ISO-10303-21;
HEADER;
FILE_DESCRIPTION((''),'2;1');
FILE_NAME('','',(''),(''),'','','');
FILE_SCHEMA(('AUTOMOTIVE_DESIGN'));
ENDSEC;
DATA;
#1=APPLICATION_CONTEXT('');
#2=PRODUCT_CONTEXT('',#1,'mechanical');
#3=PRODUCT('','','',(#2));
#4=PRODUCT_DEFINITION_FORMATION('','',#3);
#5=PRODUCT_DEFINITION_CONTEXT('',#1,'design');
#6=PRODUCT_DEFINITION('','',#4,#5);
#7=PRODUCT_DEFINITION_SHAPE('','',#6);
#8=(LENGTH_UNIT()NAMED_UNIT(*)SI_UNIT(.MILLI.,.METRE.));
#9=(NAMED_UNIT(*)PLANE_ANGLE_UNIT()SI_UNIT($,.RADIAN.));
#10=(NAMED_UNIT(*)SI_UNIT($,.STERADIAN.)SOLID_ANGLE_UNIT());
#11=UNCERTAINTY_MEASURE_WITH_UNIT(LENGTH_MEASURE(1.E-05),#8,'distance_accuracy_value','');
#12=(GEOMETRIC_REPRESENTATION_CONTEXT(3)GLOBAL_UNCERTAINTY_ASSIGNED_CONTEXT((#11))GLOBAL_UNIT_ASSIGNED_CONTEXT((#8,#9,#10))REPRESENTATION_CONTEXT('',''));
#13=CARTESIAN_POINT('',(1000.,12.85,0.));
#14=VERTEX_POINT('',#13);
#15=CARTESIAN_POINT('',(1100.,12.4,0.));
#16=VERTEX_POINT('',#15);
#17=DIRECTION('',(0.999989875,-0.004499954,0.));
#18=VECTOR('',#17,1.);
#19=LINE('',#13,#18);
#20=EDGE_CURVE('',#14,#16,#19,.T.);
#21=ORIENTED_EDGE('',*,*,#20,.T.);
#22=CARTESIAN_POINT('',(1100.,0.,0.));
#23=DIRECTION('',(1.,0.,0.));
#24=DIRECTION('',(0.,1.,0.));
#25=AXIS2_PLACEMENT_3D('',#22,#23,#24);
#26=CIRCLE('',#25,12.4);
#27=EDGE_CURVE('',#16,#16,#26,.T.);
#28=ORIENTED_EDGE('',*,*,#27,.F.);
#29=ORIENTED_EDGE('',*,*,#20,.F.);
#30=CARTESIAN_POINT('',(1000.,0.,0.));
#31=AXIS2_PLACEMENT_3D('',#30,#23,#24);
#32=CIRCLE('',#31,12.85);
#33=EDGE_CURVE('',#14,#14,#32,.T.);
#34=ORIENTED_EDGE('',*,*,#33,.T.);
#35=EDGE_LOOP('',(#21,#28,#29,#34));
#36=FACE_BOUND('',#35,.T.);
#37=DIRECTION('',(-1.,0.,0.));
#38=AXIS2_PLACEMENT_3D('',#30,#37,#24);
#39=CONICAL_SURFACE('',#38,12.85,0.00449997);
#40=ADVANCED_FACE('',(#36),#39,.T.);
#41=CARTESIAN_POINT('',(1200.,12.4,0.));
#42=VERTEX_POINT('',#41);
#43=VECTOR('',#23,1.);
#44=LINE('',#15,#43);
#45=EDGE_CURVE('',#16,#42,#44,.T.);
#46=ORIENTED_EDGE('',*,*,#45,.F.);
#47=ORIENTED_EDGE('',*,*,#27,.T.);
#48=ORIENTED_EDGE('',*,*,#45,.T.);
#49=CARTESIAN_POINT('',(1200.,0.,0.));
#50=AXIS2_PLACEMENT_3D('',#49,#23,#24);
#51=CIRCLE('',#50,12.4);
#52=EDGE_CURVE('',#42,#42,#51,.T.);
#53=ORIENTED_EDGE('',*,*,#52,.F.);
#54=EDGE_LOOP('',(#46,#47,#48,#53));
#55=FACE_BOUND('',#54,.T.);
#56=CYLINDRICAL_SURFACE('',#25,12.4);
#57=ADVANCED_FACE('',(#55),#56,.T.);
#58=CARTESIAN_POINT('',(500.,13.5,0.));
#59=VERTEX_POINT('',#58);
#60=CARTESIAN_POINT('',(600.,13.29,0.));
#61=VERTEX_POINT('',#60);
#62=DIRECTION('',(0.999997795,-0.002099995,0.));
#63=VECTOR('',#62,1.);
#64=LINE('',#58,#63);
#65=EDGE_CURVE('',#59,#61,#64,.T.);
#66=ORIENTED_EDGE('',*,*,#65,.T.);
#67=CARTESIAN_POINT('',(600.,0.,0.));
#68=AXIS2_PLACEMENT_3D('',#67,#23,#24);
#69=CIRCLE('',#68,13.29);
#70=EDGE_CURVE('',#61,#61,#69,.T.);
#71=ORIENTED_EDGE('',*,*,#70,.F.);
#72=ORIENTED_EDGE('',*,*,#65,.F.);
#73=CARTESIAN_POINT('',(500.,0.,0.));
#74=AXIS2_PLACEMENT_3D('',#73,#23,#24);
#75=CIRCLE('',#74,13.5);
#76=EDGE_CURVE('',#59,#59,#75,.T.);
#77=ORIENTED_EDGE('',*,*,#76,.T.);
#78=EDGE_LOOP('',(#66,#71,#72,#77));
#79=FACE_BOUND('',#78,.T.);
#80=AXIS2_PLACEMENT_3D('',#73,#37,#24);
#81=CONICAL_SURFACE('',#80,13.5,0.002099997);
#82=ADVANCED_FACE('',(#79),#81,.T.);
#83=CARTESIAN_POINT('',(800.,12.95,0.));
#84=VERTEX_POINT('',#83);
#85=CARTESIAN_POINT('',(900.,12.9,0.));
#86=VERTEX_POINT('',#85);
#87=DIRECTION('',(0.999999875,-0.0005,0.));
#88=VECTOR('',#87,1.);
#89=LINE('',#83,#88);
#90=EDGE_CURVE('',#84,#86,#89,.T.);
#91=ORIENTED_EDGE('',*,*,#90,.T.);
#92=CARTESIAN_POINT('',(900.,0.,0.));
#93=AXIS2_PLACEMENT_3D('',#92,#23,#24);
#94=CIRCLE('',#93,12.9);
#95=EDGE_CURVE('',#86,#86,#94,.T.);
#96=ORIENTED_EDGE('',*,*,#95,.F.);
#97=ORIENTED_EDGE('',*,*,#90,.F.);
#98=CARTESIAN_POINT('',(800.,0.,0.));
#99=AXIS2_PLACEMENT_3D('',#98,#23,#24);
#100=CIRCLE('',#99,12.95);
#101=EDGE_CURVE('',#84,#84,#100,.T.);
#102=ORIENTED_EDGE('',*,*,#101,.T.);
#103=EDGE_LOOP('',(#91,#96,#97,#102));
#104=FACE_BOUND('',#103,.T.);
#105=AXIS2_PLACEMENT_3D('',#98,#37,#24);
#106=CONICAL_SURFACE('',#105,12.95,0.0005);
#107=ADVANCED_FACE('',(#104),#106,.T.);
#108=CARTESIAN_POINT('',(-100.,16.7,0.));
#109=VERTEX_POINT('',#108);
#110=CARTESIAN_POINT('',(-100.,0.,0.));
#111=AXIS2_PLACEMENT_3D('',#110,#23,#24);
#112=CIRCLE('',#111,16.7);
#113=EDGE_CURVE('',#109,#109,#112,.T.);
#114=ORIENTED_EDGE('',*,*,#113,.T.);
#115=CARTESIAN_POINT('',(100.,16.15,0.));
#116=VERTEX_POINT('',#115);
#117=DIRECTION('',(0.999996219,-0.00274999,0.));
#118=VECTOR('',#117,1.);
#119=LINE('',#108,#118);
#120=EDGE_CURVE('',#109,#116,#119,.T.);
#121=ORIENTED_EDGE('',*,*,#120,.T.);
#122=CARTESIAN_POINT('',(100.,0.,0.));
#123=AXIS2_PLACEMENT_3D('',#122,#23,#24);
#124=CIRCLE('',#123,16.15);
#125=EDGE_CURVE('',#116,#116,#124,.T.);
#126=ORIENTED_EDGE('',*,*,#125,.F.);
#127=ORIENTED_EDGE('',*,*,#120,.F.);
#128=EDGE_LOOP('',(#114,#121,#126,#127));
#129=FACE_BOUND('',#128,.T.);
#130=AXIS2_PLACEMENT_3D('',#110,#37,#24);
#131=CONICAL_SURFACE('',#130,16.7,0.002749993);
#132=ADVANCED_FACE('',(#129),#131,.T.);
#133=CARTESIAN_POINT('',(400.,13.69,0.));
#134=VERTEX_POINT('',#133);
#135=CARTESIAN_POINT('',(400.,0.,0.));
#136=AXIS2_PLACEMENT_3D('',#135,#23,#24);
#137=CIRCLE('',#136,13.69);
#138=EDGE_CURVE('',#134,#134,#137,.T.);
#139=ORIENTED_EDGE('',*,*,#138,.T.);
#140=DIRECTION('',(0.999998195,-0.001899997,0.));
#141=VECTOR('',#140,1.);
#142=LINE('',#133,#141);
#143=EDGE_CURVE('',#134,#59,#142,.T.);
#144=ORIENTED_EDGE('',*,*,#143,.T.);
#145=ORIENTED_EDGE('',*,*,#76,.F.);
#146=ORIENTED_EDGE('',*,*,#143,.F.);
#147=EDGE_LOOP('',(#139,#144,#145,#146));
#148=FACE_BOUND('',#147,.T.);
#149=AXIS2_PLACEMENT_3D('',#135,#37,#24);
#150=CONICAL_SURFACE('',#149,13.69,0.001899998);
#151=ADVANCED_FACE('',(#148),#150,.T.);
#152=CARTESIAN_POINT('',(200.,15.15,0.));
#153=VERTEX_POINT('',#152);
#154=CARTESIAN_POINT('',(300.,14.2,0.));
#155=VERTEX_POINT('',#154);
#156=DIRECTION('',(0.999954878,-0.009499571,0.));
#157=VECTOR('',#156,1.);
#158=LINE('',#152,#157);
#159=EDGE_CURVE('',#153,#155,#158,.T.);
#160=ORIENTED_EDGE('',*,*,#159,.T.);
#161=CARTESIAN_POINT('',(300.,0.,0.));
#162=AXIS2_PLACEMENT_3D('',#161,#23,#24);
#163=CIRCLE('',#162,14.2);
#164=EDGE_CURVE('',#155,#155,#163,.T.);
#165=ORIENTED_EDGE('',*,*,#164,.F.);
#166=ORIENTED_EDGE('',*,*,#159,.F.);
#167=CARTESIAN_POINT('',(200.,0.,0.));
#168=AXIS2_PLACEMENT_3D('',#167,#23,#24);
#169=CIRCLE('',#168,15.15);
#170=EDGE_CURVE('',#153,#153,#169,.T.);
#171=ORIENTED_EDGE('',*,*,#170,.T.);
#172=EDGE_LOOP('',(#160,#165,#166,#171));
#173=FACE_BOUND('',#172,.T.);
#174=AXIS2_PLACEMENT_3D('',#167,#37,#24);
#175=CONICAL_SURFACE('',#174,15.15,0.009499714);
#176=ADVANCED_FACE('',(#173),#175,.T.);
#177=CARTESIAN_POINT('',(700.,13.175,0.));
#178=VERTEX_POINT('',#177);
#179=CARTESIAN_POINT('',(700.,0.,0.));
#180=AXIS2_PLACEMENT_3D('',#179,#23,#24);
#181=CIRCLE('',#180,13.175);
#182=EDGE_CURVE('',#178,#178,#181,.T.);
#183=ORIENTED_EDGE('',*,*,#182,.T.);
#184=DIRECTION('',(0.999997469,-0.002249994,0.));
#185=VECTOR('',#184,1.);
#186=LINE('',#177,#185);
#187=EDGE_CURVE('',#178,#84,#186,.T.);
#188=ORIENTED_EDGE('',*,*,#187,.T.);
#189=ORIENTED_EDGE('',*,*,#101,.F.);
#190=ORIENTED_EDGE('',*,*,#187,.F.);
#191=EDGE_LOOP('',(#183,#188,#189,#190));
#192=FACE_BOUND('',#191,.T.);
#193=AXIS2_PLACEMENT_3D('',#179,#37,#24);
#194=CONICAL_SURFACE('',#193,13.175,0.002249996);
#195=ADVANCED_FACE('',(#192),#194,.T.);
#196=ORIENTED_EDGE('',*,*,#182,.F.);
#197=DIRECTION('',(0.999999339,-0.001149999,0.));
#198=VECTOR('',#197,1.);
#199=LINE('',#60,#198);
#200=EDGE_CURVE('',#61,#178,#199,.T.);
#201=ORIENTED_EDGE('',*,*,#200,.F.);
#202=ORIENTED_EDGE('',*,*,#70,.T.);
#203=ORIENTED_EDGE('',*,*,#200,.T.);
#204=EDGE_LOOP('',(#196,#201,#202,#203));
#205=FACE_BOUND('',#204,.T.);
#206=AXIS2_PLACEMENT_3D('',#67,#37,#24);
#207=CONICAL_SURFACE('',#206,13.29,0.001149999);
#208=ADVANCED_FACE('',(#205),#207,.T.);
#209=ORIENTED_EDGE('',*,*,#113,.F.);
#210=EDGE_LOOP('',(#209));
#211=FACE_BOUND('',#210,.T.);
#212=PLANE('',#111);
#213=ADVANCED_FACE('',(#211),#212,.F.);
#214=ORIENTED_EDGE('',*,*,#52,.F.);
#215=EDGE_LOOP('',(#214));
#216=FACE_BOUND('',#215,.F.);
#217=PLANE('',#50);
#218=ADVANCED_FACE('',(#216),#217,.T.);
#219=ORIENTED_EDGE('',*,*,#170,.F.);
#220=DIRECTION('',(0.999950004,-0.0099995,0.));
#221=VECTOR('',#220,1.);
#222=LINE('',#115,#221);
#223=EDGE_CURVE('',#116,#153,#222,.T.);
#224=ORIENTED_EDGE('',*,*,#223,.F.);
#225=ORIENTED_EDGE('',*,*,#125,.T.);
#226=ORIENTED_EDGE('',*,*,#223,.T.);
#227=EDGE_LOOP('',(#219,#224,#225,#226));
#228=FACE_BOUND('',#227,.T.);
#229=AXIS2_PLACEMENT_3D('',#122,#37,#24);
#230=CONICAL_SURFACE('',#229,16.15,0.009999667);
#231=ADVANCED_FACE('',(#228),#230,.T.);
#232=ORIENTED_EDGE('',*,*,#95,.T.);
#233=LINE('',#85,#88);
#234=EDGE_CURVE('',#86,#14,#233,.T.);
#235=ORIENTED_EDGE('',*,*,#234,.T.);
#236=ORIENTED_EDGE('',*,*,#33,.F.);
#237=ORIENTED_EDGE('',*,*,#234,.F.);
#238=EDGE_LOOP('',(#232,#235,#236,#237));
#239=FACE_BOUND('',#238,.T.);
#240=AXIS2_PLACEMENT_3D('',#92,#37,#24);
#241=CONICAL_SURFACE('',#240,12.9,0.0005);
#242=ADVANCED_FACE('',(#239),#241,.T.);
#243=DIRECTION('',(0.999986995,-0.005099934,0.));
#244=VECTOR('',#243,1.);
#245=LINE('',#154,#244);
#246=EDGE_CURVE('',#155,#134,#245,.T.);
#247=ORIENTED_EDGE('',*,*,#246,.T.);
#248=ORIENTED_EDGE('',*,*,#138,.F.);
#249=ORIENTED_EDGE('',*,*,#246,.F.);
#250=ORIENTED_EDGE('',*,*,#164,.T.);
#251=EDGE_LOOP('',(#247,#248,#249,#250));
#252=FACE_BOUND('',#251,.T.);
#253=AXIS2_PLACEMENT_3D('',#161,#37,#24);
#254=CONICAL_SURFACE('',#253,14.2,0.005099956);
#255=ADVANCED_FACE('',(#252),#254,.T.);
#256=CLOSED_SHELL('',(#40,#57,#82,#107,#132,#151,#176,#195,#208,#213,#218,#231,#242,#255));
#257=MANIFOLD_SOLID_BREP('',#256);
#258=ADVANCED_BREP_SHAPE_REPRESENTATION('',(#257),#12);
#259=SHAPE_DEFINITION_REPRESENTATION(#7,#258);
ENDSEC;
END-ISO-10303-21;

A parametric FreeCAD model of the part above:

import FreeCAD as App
import Part
import Sketcher
from FreeCAD import Vector
Q = App.Units.Quantity


def add_polygon(sketch, points):
    """Adds a closed chain of lines whose ends are joined by coincident constraints."""
    first, n = sketch.GeometryCount, len(points)
    for a, b in zip(points, points[1:] + points[:1]):
        sketch.addGeometry(Part.LineSegment(App.Vector(*a, 0), App.Vector(*b, 0)), False)
    for i in range(n):
        sketch.addConstraint(Sketcher.Constraint("Coincident", first + i, 2, first + (i + 1) % n, 1))

doc = App.newDocument("Part")
body = doc.addObject("PartDesign::Body", "Body")

sketch1 = doc.addObject("Sketcher::SketchObject", "Sketch")
body.addObject(sketch1)
sketch1.AttachmentSupport = (doc.XY_Plane, [""])
sketch1.MapMode = "FlatFace"
add_polygon(sketch1, [(-100, 16.7), (-100, 0), (1200, 0), (1200, 12.4), (1100, 12.4), (1000, 12.85), (800, 12.95), (700, 13.175), (600, 13.29), (500, 13.5), (400, 13.69), (300, 14.2), (200, 15.15), (100, 16.15)])
sketch1.addConstraint(Sketcher.Constraint("Vertical", 0))
sketch1.addConstraint(Sketcher.Constraint("Horizontal", 1))
sketch1.addConstraint(Sketcher.Constraint("Vertical", 2))
sketch1.addConstraint(Sketcher.Constraint("Horizontal", 3))
sketch1.addConstraint(Sketcher.Constraint("PointOnObject", 0, 2, -1))
sketch1.addConstraint(Sketcher.Constraint("DistanceX", 1, 1, 1, 2, Q("1300 mm")))
sketch1.addConstraint(Sketcher.Constraint("DistanceX", 3, 2, 3, 1, Q("100 mm")))
sketch1.addConstraint(Sketcher.Constraint("Distance", 7, Q("100 mm")))
sketch1.addConstraint(Sketcher.Constraint("DistanceY", 0, 2, 0, 1, Q("16.7 mm")))
sketch1.addConstraint(Sketcher.Constraint("DistanceY", 2, 1, 2, 2, Q("12.4 mm")))
sketch1.addConstraint(Sketcher.Constraint("DistanceX", 0, 2, -1, 1, Q("100 mm")))
sketch1.addConstraint(Sketcher.Constraint("DistanceX", -1, 1, 12, 2, Q("100 mm")))
sketch1.addConstraint(Sketcher.Constraint("DistanceX", 4, 2, 3, 2, Q("100 mm")))
sketch1.addConstraint(Sketcher.Constraint("DistanceX", 6, 2, 5, 2, Q("100 mm")))
sketch1.addConstraint(Sketcher.Constraint("DistanceX", 8, 2, 7, 2, Q("100 mm")))
sketch1.addConstraint(Sketcher.Constraint("DistanceX", 9, 2, 8, 2, Q("100 mm")))
sketch1.addConstraint(Sketcher.Constraint("DistanceX", 10, 2, 9, 2, Q("100 mm")))
sketch1.addConstraint(Sketcher.Constraint("DistanceX", 11, 2, 10, 2, Q("100 mm")))
sketch1.addConstraint(Sketcher.Constraint("DistanceX", 12, 2, 11, 2, Q("100 mm")))
sketch1.addConstraint(Sketcher.Constraint("DistanceY", -1, 1, 8, 2, Q("13.5 mm")))
sketch1.addConstraint(Sketcher.Constraint("DistanceY", -1, 1, 10, 2, Q("14.2 mm")))
sketch1.addConstraint(Sketcher.Constraint("DistanceY", -1, 1, 4, 2, Q("12.85 mm")))
sketch1.addConstraint(Sketcher.Constraint("DistanceY", -1, 1, 5, 2, Q("12.95 mm")))
sketch1.addConstraint(Sketcher.Constraint("DistanceY", -1, 1, 7, 2, Q("13.29 mm")))
sketch1.addConstraint(Sketcher.Constraint("DistanceY", -1, 1, 9, 2, Q("13.69 mm")))
sketch1.addConstraint(Sketcher.Constraint("DistanceY", -1, 1, 11, 2, Q("15.15 mm")))
sketch1.addConstraint(Sketcher.Constraint("DistanceY", -1, 1, 12, 2, Q("16.15 mm")))
sketch1.addConstraint(Sketcher.Constraint("DistanceY", -1, 1, 6, 2, Q("13.175 mm")))
revolution = doc.addObject("PartDesign::Revolution", "Revolution")
body.addObject(revolution)
revolution.Profile = sketch1
revolution.ReferenceAxis = (sketch1, ["H_Axis"])
revolution.Angle = 360

doc.recompute()
